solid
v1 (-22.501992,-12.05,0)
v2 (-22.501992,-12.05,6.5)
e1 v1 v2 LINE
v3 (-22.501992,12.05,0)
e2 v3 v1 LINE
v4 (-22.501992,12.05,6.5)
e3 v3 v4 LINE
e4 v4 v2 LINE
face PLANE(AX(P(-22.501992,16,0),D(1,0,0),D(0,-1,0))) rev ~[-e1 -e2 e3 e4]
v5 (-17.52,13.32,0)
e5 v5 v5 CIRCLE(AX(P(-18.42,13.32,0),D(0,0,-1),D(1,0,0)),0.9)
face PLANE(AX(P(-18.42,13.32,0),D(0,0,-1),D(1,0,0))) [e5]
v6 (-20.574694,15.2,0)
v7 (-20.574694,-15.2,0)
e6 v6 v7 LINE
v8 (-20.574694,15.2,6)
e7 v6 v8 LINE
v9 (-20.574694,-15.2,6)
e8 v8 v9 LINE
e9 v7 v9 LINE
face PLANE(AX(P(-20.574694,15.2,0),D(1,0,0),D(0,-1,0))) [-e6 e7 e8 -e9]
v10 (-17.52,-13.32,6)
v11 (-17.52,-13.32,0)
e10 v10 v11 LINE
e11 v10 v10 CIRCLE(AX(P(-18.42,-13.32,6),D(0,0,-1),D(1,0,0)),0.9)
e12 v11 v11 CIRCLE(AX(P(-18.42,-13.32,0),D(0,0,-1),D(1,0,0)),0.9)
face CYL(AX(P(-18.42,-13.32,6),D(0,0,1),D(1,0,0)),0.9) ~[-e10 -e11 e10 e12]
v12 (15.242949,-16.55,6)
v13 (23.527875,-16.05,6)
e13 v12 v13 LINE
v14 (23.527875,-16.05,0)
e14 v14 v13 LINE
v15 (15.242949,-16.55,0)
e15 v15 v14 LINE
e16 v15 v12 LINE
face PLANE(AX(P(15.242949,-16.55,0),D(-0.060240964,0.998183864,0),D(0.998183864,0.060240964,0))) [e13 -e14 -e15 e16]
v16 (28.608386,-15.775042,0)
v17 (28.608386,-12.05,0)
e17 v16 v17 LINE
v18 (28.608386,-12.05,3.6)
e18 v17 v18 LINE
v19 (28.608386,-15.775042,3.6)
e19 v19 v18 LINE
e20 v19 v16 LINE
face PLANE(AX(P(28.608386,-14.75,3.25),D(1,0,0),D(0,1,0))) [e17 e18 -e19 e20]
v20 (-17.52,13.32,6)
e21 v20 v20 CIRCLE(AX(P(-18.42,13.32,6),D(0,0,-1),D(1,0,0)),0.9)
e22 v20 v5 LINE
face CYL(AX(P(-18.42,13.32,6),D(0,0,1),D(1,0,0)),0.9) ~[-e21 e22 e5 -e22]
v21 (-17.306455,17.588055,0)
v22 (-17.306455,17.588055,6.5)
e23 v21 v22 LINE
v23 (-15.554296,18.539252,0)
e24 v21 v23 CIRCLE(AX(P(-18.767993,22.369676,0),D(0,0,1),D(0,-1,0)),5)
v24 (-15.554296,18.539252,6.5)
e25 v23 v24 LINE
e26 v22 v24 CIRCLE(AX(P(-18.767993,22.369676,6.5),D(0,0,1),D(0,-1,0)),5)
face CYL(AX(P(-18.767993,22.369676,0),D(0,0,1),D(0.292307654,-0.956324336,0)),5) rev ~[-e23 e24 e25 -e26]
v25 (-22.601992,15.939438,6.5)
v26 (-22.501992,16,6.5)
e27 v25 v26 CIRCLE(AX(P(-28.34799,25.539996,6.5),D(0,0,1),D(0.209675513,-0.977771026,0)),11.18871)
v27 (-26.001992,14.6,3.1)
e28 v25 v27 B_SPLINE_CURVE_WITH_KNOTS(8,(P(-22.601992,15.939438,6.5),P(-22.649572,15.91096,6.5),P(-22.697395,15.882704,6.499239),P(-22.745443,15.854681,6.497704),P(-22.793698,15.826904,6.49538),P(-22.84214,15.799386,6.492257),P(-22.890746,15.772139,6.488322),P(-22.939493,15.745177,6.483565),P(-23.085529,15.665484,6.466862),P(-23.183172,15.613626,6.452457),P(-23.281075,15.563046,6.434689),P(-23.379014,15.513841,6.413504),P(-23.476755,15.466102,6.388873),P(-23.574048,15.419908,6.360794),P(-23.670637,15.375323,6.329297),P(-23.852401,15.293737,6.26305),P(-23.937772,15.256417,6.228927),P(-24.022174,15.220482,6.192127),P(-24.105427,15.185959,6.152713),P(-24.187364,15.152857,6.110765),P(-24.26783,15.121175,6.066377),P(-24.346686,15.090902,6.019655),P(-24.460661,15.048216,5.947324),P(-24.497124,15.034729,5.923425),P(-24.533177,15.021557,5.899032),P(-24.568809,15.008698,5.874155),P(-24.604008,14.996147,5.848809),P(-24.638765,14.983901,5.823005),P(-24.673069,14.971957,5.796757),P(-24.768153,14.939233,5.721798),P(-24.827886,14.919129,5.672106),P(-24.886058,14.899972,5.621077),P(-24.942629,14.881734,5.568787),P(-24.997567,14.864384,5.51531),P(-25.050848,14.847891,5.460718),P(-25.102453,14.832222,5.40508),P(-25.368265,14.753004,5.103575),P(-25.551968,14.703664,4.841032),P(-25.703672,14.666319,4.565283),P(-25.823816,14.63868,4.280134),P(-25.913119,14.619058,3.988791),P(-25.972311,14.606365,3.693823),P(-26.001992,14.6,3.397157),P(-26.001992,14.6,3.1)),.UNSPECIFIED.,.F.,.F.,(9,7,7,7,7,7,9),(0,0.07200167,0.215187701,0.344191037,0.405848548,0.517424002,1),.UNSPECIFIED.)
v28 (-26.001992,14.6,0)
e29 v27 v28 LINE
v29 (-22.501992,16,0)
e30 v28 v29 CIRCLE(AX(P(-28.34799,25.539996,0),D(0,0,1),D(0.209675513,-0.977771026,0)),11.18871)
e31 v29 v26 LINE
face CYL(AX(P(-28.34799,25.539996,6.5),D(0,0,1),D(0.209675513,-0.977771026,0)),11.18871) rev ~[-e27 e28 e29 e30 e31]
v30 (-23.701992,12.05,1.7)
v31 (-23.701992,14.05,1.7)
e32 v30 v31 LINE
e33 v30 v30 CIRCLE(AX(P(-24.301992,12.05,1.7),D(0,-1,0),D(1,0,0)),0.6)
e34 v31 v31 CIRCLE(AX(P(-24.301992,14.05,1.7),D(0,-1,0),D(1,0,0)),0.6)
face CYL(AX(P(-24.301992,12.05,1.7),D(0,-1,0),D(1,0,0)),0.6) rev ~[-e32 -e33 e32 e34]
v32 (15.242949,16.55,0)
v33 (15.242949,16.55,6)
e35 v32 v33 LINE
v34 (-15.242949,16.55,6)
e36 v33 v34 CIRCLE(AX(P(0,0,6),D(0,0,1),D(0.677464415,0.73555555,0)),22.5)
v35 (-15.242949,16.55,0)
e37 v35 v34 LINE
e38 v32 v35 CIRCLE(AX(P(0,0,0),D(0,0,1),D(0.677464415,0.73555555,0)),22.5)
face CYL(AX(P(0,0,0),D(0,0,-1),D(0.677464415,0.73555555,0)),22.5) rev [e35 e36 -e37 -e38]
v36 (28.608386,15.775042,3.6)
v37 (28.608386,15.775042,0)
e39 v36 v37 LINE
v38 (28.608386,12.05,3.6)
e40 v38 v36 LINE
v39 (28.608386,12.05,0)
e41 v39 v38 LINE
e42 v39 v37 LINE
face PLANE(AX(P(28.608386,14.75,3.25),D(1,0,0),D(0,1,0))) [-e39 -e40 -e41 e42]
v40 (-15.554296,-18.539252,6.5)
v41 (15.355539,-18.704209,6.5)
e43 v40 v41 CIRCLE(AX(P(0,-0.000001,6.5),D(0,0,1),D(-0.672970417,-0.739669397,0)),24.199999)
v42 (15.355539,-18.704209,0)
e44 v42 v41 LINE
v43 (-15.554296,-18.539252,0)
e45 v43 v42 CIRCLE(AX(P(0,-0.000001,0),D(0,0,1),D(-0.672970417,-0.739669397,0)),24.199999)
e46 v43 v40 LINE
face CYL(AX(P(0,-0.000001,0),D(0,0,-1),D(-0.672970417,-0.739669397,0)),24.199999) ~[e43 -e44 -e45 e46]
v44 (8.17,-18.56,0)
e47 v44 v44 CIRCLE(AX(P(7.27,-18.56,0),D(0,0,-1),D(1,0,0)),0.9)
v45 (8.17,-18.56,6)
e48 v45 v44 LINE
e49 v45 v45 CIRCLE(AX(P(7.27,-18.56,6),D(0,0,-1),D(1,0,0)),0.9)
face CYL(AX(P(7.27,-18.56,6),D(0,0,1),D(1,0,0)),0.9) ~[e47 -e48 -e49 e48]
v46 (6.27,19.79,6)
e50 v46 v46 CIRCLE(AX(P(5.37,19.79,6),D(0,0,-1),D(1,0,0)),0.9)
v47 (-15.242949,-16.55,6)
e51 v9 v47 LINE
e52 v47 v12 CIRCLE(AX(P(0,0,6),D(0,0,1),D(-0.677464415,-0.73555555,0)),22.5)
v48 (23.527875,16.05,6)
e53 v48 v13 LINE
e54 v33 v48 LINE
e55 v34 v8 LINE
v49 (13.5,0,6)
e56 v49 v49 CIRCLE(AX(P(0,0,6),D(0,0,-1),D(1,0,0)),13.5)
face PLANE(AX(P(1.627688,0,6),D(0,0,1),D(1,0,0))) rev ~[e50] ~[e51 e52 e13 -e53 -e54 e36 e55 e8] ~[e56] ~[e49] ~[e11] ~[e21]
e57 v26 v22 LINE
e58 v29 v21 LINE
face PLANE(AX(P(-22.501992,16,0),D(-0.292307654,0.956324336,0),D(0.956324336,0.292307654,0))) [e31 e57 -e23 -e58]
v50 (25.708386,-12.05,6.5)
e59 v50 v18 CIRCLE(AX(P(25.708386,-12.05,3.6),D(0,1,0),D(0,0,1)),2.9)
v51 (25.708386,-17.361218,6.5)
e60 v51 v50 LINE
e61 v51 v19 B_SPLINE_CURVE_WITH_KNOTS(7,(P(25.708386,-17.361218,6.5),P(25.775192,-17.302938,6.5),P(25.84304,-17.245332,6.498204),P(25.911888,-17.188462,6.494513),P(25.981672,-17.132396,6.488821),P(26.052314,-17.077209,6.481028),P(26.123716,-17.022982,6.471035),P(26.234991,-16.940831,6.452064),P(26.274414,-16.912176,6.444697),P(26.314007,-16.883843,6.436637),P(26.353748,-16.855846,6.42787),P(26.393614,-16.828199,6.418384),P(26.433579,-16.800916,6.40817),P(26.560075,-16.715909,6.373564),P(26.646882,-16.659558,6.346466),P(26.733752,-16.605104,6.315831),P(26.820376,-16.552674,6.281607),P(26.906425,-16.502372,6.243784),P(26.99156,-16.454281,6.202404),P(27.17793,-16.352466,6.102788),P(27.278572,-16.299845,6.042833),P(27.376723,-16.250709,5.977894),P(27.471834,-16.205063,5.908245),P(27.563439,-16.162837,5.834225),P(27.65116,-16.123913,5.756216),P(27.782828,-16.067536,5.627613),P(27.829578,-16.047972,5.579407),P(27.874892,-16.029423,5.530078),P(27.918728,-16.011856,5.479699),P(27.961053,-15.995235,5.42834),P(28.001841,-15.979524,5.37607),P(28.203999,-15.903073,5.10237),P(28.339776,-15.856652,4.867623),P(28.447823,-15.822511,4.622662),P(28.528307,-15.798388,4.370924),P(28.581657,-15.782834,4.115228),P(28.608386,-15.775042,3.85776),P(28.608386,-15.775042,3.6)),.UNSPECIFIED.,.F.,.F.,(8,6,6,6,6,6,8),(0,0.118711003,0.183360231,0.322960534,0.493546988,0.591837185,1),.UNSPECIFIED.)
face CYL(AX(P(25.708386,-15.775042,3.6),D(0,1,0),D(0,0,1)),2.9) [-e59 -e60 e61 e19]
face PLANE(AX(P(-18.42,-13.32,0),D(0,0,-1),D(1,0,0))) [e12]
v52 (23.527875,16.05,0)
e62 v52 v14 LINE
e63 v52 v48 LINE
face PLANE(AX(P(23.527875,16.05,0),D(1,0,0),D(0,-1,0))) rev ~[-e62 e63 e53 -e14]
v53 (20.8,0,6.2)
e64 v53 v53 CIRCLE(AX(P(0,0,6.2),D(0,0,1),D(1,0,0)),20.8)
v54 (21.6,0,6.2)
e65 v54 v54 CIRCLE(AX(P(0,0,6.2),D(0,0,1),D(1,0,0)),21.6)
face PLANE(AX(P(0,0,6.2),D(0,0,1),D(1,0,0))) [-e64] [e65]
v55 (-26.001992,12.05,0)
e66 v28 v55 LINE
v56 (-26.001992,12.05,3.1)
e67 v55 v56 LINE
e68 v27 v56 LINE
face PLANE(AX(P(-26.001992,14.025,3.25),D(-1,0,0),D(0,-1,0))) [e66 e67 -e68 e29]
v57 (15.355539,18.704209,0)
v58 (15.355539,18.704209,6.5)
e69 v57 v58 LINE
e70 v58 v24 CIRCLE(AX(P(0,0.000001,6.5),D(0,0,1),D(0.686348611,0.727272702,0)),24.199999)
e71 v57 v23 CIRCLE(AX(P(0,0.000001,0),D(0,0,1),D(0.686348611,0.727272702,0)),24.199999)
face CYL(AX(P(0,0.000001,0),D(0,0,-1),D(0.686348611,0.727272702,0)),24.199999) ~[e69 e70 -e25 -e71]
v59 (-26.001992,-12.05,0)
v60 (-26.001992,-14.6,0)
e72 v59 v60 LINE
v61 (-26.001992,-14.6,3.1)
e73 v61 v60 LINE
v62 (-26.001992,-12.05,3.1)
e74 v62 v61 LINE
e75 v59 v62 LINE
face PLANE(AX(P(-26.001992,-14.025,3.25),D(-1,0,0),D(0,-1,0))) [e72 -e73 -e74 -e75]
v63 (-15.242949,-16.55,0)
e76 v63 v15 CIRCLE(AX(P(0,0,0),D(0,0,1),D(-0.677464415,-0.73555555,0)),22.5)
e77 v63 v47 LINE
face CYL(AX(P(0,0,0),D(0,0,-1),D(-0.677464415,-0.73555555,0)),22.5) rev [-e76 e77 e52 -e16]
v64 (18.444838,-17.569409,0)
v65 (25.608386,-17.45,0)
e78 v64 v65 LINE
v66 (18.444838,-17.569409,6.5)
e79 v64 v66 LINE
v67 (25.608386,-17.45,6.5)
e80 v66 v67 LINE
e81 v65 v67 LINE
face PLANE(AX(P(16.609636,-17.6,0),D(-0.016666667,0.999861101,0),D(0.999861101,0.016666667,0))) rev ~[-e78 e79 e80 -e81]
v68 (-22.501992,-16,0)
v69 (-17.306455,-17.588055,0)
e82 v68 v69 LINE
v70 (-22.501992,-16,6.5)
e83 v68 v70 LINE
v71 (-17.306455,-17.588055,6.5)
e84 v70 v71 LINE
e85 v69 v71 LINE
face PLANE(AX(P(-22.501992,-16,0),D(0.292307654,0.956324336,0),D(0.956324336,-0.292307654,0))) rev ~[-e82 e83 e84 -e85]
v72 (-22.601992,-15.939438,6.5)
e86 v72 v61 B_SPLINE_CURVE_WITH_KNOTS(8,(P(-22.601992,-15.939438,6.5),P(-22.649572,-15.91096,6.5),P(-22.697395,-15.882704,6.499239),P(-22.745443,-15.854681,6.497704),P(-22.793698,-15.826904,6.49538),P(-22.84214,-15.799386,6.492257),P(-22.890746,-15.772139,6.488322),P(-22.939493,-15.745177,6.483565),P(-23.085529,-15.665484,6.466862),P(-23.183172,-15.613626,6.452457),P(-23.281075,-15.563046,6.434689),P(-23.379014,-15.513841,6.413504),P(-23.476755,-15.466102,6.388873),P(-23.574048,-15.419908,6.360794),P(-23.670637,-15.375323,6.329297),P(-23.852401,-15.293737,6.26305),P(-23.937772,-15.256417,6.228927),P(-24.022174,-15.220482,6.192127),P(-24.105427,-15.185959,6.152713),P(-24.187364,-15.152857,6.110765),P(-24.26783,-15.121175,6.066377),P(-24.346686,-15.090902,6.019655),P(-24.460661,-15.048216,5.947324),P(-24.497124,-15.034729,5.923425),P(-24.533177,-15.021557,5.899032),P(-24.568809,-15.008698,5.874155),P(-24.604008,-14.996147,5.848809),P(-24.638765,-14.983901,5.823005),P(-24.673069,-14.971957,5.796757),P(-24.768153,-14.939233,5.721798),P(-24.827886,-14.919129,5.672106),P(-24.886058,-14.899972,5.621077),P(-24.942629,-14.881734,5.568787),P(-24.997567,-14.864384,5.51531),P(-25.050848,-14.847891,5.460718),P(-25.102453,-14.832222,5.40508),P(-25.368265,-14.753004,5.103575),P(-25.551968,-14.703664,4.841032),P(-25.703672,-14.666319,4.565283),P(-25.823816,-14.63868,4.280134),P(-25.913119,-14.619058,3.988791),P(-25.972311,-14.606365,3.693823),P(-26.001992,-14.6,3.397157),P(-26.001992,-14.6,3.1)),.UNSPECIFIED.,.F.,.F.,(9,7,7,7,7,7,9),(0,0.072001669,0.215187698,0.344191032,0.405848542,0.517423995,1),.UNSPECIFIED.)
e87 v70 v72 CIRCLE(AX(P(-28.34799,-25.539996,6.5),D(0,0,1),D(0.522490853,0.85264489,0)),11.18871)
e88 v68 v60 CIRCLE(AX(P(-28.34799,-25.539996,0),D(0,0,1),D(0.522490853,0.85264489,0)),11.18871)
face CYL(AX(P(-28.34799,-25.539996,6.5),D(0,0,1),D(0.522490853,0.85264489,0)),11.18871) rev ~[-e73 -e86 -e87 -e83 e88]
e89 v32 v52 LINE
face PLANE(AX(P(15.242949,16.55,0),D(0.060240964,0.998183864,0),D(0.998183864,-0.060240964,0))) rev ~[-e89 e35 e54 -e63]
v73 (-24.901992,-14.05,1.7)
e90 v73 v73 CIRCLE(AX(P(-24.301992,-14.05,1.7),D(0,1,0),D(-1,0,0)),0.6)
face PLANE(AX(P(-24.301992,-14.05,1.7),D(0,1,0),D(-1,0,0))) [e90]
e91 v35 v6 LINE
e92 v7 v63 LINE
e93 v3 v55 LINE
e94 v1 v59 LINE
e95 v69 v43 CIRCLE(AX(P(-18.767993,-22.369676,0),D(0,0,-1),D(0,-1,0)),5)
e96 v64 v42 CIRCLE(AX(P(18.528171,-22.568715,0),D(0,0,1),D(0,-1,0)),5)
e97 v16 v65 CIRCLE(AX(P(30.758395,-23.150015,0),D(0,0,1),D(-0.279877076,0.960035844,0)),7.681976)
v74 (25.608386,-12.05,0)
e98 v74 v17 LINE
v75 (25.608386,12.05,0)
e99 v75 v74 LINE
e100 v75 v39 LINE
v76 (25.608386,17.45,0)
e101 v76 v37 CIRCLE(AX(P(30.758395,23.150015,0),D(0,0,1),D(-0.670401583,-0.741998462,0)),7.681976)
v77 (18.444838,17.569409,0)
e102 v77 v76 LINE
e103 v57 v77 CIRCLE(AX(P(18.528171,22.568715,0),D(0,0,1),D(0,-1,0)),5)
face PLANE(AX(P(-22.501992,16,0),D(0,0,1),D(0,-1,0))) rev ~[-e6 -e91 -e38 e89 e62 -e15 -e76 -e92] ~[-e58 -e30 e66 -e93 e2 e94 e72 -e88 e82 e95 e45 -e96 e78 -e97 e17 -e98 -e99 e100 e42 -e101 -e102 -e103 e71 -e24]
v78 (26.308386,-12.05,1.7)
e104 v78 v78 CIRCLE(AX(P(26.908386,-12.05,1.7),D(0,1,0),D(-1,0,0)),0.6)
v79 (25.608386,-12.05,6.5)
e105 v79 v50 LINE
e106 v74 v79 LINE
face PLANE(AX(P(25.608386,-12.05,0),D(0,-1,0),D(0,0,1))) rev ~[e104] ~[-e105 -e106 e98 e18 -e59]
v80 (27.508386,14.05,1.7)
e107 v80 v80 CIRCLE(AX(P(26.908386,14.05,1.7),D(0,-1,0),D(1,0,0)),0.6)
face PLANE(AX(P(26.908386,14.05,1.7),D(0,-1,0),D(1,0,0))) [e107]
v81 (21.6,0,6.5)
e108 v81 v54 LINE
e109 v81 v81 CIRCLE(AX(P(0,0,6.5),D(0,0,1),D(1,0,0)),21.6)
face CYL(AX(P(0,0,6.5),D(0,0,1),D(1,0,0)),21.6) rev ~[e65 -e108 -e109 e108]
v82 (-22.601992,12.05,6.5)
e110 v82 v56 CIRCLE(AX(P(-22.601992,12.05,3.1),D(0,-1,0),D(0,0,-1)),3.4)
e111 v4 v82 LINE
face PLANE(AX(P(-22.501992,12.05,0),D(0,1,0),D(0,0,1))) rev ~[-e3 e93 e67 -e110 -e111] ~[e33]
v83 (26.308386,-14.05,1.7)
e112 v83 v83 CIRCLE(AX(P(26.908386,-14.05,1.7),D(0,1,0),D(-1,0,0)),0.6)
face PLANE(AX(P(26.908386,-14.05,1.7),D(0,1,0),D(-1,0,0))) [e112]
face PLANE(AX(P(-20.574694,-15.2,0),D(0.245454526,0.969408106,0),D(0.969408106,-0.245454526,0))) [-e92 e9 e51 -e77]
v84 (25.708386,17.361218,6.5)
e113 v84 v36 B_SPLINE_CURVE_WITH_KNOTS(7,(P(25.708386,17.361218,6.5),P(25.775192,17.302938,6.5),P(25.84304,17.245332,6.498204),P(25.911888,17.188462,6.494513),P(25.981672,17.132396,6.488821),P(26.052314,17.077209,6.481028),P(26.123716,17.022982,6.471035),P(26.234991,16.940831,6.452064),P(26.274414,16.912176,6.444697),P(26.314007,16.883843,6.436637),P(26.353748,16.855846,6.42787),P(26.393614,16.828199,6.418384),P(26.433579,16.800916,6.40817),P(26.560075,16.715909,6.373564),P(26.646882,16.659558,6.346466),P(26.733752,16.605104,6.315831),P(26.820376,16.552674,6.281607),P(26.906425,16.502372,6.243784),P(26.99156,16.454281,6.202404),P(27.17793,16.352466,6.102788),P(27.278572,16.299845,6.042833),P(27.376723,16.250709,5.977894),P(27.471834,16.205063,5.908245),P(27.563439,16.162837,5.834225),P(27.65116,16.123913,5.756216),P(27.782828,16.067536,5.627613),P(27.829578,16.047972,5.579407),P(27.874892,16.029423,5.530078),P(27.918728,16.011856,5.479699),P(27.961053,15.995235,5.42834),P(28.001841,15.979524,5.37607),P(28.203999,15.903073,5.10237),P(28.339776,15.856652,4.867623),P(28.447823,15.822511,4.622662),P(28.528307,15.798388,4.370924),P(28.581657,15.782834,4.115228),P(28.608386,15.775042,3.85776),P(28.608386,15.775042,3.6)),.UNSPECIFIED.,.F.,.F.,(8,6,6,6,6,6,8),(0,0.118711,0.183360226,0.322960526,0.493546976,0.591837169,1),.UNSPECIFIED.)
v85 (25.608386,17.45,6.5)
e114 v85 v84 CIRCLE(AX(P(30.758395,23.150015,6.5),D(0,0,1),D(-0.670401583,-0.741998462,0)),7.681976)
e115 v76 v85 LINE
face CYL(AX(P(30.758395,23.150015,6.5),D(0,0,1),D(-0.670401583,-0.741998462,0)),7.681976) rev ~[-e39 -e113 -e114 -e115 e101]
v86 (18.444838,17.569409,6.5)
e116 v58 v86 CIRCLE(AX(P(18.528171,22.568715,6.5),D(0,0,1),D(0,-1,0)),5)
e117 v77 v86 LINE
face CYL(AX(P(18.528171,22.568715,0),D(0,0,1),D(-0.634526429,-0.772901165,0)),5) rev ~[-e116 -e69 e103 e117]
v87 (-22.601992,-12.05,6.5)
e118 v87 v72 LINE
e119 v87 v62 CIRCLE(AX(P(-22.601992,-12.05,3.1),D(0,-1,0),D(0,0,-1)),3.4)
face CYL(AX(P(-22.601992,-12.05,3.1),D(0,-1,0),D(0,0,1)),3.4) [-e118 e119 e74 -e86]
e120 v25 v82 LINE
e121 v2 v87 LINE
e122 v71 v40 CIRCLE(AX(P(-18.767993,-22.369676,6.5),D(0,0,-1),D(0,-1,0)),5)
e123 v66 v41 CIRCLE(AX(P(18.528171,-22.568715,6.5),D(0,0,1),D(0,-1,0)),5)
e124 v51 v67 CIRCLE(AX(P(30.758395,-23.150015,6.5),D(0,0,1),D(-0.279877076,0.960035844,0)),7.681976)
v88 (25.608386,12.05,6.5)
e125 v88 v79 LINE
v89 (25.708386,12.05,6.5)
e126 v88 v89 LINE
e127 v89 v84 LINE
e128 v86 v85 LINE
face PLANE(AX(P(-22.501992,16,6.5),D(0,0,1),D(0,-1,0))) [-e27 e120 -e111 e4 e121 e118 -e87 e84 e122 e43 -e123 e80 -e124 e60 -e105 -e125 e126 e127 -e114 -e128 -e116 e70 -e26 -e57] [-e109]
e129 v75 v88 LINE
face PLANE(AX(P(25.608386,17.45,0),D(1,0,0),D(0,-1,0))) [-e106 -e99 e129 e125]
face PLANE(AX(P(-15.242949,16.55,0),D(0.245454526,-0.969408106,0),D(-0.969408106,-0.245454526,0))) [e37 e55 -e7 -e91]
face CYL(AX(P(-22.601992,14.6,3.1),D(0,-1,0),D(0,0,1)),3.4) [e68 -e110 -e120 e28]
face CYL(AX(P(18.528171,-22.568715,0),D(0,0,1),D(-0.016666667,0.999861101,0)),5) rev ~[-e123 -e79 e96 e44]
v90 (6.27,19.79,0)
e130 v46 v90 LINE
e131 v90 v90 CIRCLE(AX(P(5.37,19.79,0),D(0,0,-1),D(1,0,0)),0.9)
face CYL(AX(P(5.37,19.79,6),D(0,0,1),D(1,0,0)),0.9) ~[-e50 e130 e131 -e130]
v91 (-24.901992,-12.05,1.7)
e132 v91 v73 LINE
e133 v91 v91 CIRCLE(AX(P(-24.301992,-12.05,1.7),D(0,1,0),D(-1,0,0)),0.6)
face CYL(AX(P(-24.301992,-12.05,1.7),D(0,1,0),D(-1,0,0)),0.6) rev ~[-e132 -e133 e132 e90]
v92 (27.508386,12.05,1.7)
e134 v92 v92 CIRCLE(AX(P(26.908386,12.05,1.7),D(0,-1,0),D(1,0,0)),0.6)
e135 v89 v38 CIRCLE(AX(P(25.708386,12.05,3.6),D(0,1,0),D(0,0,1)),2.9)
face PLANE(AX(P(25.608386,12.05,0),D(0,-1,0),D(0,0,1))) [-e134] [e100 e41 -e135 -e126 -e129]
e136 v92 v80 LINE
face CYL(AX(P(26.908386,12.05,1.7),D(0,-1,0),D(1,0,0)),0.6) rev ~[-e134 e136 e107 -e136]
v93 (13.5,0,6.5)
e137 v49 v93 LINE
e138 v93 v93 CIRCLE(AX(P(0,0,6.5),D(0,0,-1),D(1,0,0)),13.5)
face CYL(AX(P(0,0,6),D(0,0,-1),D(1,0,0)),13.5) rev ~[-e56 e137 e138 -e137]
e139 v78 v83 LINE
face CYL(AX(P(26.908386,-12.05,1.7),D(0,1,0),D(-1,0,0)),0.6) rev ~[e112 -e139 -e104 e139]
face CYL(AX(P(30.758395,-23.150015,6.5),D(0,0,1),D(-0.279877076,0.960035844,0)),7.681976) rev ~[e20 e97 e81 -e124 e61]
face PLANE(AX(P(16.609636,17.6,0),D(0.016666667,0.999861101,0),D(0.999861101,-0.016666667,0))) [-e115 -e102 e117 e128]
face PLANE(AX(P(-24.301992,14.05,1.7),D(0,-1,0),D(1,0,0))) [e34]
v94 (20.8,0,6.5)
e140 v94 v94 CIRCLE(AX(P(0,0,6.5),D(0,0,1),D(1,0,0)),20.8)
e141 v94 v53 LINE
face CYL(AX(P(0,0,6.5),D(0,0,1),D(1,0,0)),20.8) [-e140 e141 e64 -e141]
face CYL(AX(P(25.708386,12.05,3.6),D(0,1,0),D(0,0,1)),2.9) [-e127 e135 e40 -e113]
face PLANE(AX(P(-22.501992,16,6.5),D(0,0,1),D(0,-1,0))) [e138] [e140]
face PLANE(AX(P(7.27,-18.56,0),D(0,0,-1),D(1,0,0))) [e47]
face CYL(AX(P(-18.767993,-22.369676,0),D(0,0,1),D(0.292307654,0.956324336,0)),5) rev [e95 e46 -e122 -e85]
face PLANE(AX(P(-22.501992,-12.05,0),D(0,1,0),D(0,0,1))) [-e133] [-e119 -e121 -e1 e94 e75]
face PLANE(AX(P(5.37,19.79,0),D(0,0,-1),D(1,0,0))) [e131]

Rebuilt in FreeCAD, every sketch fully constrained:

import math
import FreeCAD as App
import Part
import Sketcher
from FreeCAD import Vector
Q = App.Units.Quantity


def edges_at(feature, points):
    """Names of the edges that pass closest to the given points."""
    edges = feature.Shape.Edges
    near = lambda p: min(range(len(edges)), key=lambda i: edges[i].distToShape(Part.Vertex(*p))[0])
    return sorted({f"Edge{near(p) + 1}" for p in points})

doc = App.newDocument("Part")
body = doc.addObject("PartDesign::Body", "Body")

# Sketch on XY plane
sketch1 = body.newObject("Sketcher::SketchObject", "Sketch")
sketch1.AttachmentSupport = (doc.getObject("XY_Plane"), [""])
sketch1.MapMode = "FlatFace"
sketch1.addGeometry([
    Part.LineSegment(Vector(-22.501992, 16, 0), Vector(-22.501992, -16, 0)),  # 0
    Part.LineSegment(Vector(-22.501992, -16, 0), Vector(-16.285883, -17.9, 0)),  # 1
    Part.ArcOfCircle(Part.Circle(Vector(0, -0.000001, 0), Vector(0, 0, 1), 24.199999), math.radians(-132.296739), math.radians(-46.65824)),  # 2
    Part.LineSegment(Vector(16.609636, -17.6, 0), Vector(25.608386, -17.45, 0)),  # 3
    Part.LineSegment(Vector(25.608386, -17.45, 0), Vector(25.608386, 17.45, 0)),  # 4
    Part.LineSegment(Vector(25.608386, 17.45, 0), Vector(16.609636, 17.6, 0)),  # 5
    Part.ArcOfCircle(Part.Circle(Vector(0, 0.000001, 0), Vector(0, 0, 1), 24.199999), math.radians(46.65824), math.radians(132.296739)),  # 6
    Part.LineSegment(Vector(-16.285883, 17.9, 0), Vector(-22.501992, 16, 0)),  # 7
], False)
sketch1.addConstraint([
    Sketcher.Constraint("Coincident", 0, 2, 1, 1),
    Sketcher.Constraint("Coincident", 1, 2, 2, 1),
    Sketcher.Constraint("Coincident", 2, 2, 3, 1),
    Sketcher.Constraint("Coincident", 3, 2, 4, 1),
    Sketcher.Constraint("Coincident", 4, 2, 5, 1),
    Sketcher.Constraint("Coincident", 5, 2, 6, 1),
    Sketcher.Constraint("Coincident", 6, 2, 7, 1),
    Sketcher.Constraint("Coincident", 7, 2, 0, 1),
    Sketcher.Constraint("Vertical", 0),
    Sketcher.Constraint("Vertical", 4),
    Sketcher.Constraint("Coincident", 2, 3, -1, 1),
    Sketcher.Constraint("Coincident", 6, 3, -1, 1),
    Sketcher.Constraint("Equal", 2, 6),
    Sketcher.Constraint("Vertical", 2, 2, 5, 2),
    Sketcher.Constraint("Vertical", 1, 2, 6, 2),
    Sketcher.Constraint("Equal", 3, 5),
    Sketcher.Constraint("Equal", 1, 7),
    Sketcher.Constraint("Radius", 2, Q("24.199999 mm")),
    Sketcher.Constraint("DistanceY", 0, 2, 0, 1, Q("32 mm")),
    Sketcher.Constraint("Distance", 3, Q("9 mm")),
    Sketcher.Constraint("DistanceY", 4, 1, 4, 2, Q("34.9 mm")),
    Sketcher.Constraint("Distance", 1, Q("6.500001 mm")),
    Sketcher.Constraint("DistanceY", 1, 2, -1, 1, Q("17.9 mm")),
    Sketcher.Constraint("DistanceY", 2, 2, -1, 1, Q("17.6 mm")),
])
pad1 = body.newObject("PartDesign::Pad", "Pad")
pad1.Profile = sketch1
pad1.Length = 6.5

# Sketch on XY plane
sketch2 = body.newObject("Sketcher::SketchObject", "Sketch001")
sketch2.AttachmentSupport = (doc.getObject("XY_Plane"), [""])
sketch2.MapMode = "FlatFace"
sketch2.addGeometry([
    Part.LineSegment(Vector(-15.242949, 16.55, 0), Vector(-20.574694, 15.2, 0)),  # 0
    Part.LineSegment(Vector(-20.574694, 15.2, 0), Vector(-20.574694, -15.2, 0)),  # 1
    Part.LineSegment(Vector(-20.574694, -15.2, 0), Vector(-15.242949, -16.55, 0)),  # 2
    Part.ArcOfCircle(Part.Circle(Vector(0, 0, 0), Vector(0, 0, 1), 22.5), math.radians(-132.64582), math.radians(-47.35418)),  # 3
    Part.LineSegment(Vector(15.242949, -16.55, 0), Vector(23.527875, -16.05, 0)),  # 4
    Part.LineSegment(Vector(23.527875, -16.05, 0), Vector(23.527875, 16.05, 0)),  # 5
    Part.LineSegment(Vector(23.527875, 16.05, 0), Vector(15.242949, 16.55, 0)),  # 6
    Part.ArcOfCircle(Part.Circle(Vector(0, 0, 0), Vector(0, 0, 1), 22.5), math.radians(47.35418), math.radians(132.64582)),  # 7
], False)
sketch2.addConstraint([
    Sketcher.Constraint("Coincident", 0, 2, 1, 1),
    Sketcher.Constraint("Coincident", 1, 2, 2, 1),
    Sketcher.Constraint("Coincident", 2, 2, 3, 1),
    Sketcher.Constraint("Coincident", 3, 2, 4, 1),
    Sketcher.Constraint("Coincident", 4, 2, 5, 1),
    Sketcher.Constraint("Coincident", 5, 2, 6, 1),
    Sketcher.Constraint("Coincident", 6, 2, 7, 1),
    Sketcher.Constraint("Coincident", 7, 2, 0, 1),
    Sketcher.Constraint("Vertical", 1),
    Sketcher.Constraint("Vertical", 5),
    Sketcher.Constraint("Coincident", 3, 3, -1, 1),
    Sketcher.Constraint("Coincident", 7, 3, -1, 1),
    Sketcher.Constraint("Equal", 3, 7),
    Sketcher.Constraint("Horizontal", 2, 2, 3, 2),
    Sketcher.Constraint("Horizontal", 6, 2, 7, 2),
    Sketcher.Constraint("Vertical", 3, 2, 6, 2),
    Sketcher.Constraint("Equal", 0, 2),
    Sketcher.Constraint("Equal", 4, 6),
    Sketcher.Constraint("Radius", 3, Q("22.5 mm")),
    Sketcher.Constraint("DistanceY", 1, 2, 1, 1, Q("30.4 mm")),
    Sketcher.Constraint("DistanceY", 5, 1, 5, 2, Q("32.1 mm")),
    Sketcher.Constraint("Distance", 0, Q("5.5 mm")),
    Sketcher.Constraint("Distance", 4, Q("8.3 mm")),
    Sketcher.Constraint("DistanceY", 3, 2, 4, 2, Q("0.5 mm")),
])
pocket1 = body.newObject("PartDesign::Pocket", "Pocket")
pocket1.Profile = sketch2
pocket1.Length = 6
pocket1.Reversed = True

# Sketch on XY plane
sketch3 = body.newObject("Sketcher::SketchObject", "Sketch002")
sketch3.AttachmentSupport = (doc.getObject("XY_Plane"), [""])
sketch3.MapMode = "FlatFace"
sketch3.AttachmentOffset = App.Placement(Vector(0, 0, 6), App.Rotation())
sketch3.addGeometry(Part.Circle(Vector(0, 0, 0), Vector(0, 0, 1), 13.5), False)
sketch3.addConstraint([
    Sketcher.Constraint("Coincident", 0, 3, -1, 1),
    Sketcher.Constraint("Diameter", 0, Q("27 mm")),
])
pocket2 = body.newObject("PartDesign::Pocket", "Pocket001")
pocket2.Profile = sketch3
pocket2.Length = 1
pocket2.Reversed = True

# Sketch on YZ plane
sketch4 = body.newObject("Sketcher::SketchObject", "Sketch003")
sketch4.AttachmentSupport = (doc.getObject("YZ_Plane"), [""])
sketch4.MapMode = "FlatFace"
sketch4.AttachmentOffset = App.Placement(Vector(0, 0, 25.608386), App.Rotation())
sketch4.addGeometry([
    Part.LineSegment(Vector(-17.45, 6.5, 0), Vector(-17.45, 0, 0)),  # 0
    Part.LineSegment(Vector(-17.45, 0, 0), Vector(-12.05, 0, 0)),  # 1
    Part.LineSegment(Vector(-12.05, 0, 0), Vector(-12.05, 6.5, 0)),  # 2
    Part.LineSegment(Vector(-12.05, 6.5, 0), Vector(-17.45, 6.5, 0)),  # 3
    Part.LineSegment(Vector(12.05, 6.5, 0), Vector(12.05, 0, 0)),  # 4
    Part.LineSegment(Vector(12.05, 0, 0), Vector(17.45, 0, 0)),  # 5
    Part.LineSegment(Vector(17.45, 0, 0), Vector(17.45, 6.5, 0)),  # 6
    Part.LineSegment(Vector(17.45, 6.5, 0), Vector(12.05, 6.5, 0)),  # 7
], False)
sketch4.addConstraint([
    Sketcher.Constraint("Coincident", 0, 2, 1, 1),
    Sketcher.Constraint("Coincident", 1, 2, 2, 1),
    Sketcher.Constraint("Coincident", 2, 2, 3, 1),
    Sketcher.Constraint("Coincident", 3, 2, 0, 1),
    Sketcher.Constraint("Coincident", 4, 2, 5, 1),
    Sketcher.Constraint("Coincident", 5, 2, 6, 1),
    Sketcher.Constraint("Coincident", 6, 2, 7, 1),
    Sketcher.Constraint("Coincident", 7, 2, 4, 1),
    Sketcher.Constraint("Vertical", 0),
    Sketcher.Constraint("Horizontal", 1),
    Sketcher.Constraint("Vertical", 2),
    Sketcher.Constraint("Horizontal", 3),
    Sketcher.Constraint("Vertical", 4),
    Sketcher.Constraint("Horizontal", 5),
    Sketcher.Constraint("Vertical", 6),
    Sketcher.Constraint("Horizontal", 7),
    Sketcher.Constraint("Symmetric", 1, 2, 4, 2, -1, 1),
    Sketcher.Constraint("Symmetric", 0, 2, 5, 2, -2),
    Sketcher.Constraint("Horizontal", 3, 2, 6, 2),
    Sketcher.Constraint("DistanceX", 1, 1, 1, 2, Q("5.4 mm")),
    Sketcher.Constraint("DistanceY", 0, 2, 0, 1, Q("6.5 mm")),
    Sketcher.Constraint("DistanceX", 1, 2, 4, 2, Q("24.1 mm")),
])
pad2 = body.newObject("PartDesign::Pad", "Pad001")
pad2.Profile = sketch4
pad2.Length = 3

# Sketch on XY plane
sketch5 = body.newObject("Sketcher::SketchObject", "Sketch004")
sketch5.AttachmentSupport = (doc.getObject("XY_Plane"), [""])
sketch5.MapMode = "FlatFace"
sketch5.AttachmentOffset = App.Placement(Vector(0, 0, 6.5), App.Rotation())
sketch5.addGeometry([
    Part.ArcOfCircle(Part.Circle(Vector(30.758395, 23.150015, 0), Vector(0, 0, 1), 7.681976), math.radians(-132.098067), math.radians(-106.252868)),  # 0
    Part.LineSegment(Vector(28.608386, 15.775042, 0), Vector(28.608386, 17.45, 0)),  # 1
    Part.LineSegment(Vector(28.608386, 17.45, 0), Vector(25.608386, 17.45, 0)),  # 2
    Part.ArcOfCircle(Part.Circle(Vector(30.758395, -23.150015, 0), Vector(0, 0, 1), 7.681976), math.radians(106.252868), math.radians(132.098067)),  # 3
    Part.LineSegment(Vector(25.608386, -17.45, 0), Vector(28.608386, -17.45, 0)),  # 4
    Part.LineSegment(Vector(28.608386, -17.45, 0), Vector(28.608386, -15.775042, 0)),  # 5
], False)
sketch5.addConstraint([
    Sketcher.Constraint("Coincident", 0, 2, 1, 1),
    Sketcher.Constraint("Coincident", 1, 2, 2, 1),
    Sketcher.Constraint("Coincident", 2, 2, 0, 1),
    Sketcher.Constraint("Coincident", 3, 2, 4, 1),
    Sketcher.Constraint("Coincident", 4, 2, 5, 1),
    Sketcher.Constraint("Coincident", 5, 2, 3, 1),
    Sketcher.Constraint("Vertical", 1),
    Sketcher.Constraint("Horizontal", 2),
    Sketcher.Constraint("Horizontal", 4),
    Sketcher.Constraint("Vertical", 5),
    Sketcher.Constraint("Equal", 0, 3),
    Sketcher.Constraint("Symmetric", 0, 3, 3, 3, -1),
    Sketcher.Constraint("Symmetric", 1, 2, 4, 2, -1),
    Sketcher.Constraint("DistanceX", 2, 2, 2, 1, Q("3 mm")),
    Sketcher.Constraint("DistanceY", 3, 2, 2, 2, Q("34.9 mm")),
    Sketcher.Constraint("Radius", 0, Q("7.681976 mm")),
    Sketcher.Constraint("DistanceY", 1, 1, 1, 2, Q("1.674958 mm")),
    Sketcher.Constraint("DistanceX", -1, 1, 0, 3, Q("30.758395 mm")),
])
pocket3 = body.newObject("PartDesign::Pocket", "Pocket002")
pocket3.Profile = sketch5
pocket3.Length = 10

# Sketch on XZ plane
sketch6 = body.newObject("Sketcher::SketchObject", "Sketch005")
sketch6.AttachmentSupport = (doc.getObject("XZ_Plane"), [""])
sketch6.MapMode = "FlatFace"
sketch6.AttachmentOffset = App.Placement(Vector(0, 0, 12.05), App.Rotation())
sketch6.addGeometry(Part.Circle(Vector(26.908386, 1.7, 0), Vector(0, 0, 1), 0.6), False)
sketch6.addConstraint([
    Sketcher.Constraint("Diameter", 0, Q("1.2 mm")),
    Sketcher.Constraint("DistanceY", -1, 1, 0, 3, Q("1.7 mm")),
    Sketcher.Constraint("DistanceX", -1, 1, 0, 3, Q("26.908386 mm")),
])
pocket4 = body.newObject("PartDesign::Pocket", "Pocket003")
pocket4.Profile = sketch6
pocket4.Length = 2
pocket4.Reversed = True

# Sketch on XZ plane
sketch7 = body.newObject("Sketcher::SketchObject", "Sketch006")
sketch7.AttachmentSupport = (doc.getObject("XZ_Plane"), [""])
sketch7.MapMode = "FlatFace"
sketch7.AttachmentOffset = App.Placement(Vector(0, 0, -12.05), App.Rotation())
sketch7.addGeometry(Part.Circle(Vector(26.908386, 1.7, 0), Vector(0, 0, 1), 0.6), False)
sketch7.addConstraint([
    Sketcher.Constraint("Diameter", 0, Q("1.2 mm")),
    Sketcher.Constraint("DistanceY", -1, 1, 0, 3, Q("1.7 mm")),
    Sketcher.Constraint("DistanceX", -1, 1, 0, 3, Q("26.908386 mm")),
])
pocket5 = body.newObject("PartDesign::Pocket", "Pocket004")
pocket5.Profile = sketch7
pocket5.Length = 2
doc.recompute()

fillet = body.newObject("PartDesign::Fillet", "Fillet")
fillet.Base = (pocket5, edges_at(pocket5, [(28.608, -13.913, 6.5)]))
fillet.Radius = 2.9
doc.recompute()

fillet2 = body.newObject("PartDesign::Fillet", "Fillet001")
fillet2.Base = (fillet, edges_at(fillet, [(28.608, 13.913, 6.5)]))
fillet2.Radius = 2.9
doc.recompute()

fillet3 = body.newObject("PartDesign::Fillet", "Fillet002")
fillet3.Base = (fillet2, edges_at(fillet2, [(16.61, -17.6, 3.25)]))
fillet3.Radius = 5
doc.recompute()

fillet4 = body.newObject("PartDesign::Fillet", "Fillet003")
fillet4.Base = (fillet3, edges_at(fillet3, [(16.61, 17.6, 3.25)]))
fillet4.Radius = 5
doc.recompute()

fillet5 = body.newObject("PartDesign::Fillet", "Fillet004")
fillet5.Base = (fillet4, edges_at(fillet4, [(-16.286, -17.9, 3.25)]))
fillet5.Radius = 5
doc.recompute()

fillet6 = body.newObject("PartDesign::Fillet", "Fillet005")
fillet6.Base = (fillet5, edges_at(fillet5, [(-16.286, 17.9, 3.25)]))
fillet6.Radius = 5

# Sketch on YZ plane
sketch8 = body.newObject("Sketcher::SketchObject", "Sketch007")
sketch8.AttachmentSupport = (doc.getObject("YZ_Plane"), [""])
sketch8.MapMode = "FlatFace"
sketch8.AttachmentOffset = App.Placement(Vector(0, 0, -22.501992), App.Rotation())
sketch8.addGeometry([
    Part.LineSegment(Vector(16, 6.5, 0), Vector(16, 0, 0)),  # 0
    Part.LineSegment(Vector(16, 0, 0), Vector(12.05, 0, 0)),  # 1
    Part.LineSegment(Vector(12.05, 0, 0), Vector(12.05, 6.5, 0)),  # 2
    Part.LineSegment(Vector(12.05, 6.5, 0), Vector(16, 6.5, 0)),  # 3
    Part.LineSegment(Vector(-12.05, 6.5, 0), Vector(-12.05, 0, 0)),  # 4
    Part.LineSegment(Vector(-12.05, 0, 0), Vector(-16, 0, 0)),  # 5
    Part.LineSegment(Vector(-16, 0, 0), Vector(-16, 6.5, 0)),  # 6
    Part.LineSegment(Vector(-16, 6.5, 0), Vector(-12.05, 6.5, 0)),  # 7
], False)
sketch8.addConstraint([
    Sketcher.Constraint("Coincident", 0, 2, 1, 1),
    Sketcher.Constraint("Coincident", 1, 2, 2, 1),
    Sketcher.Constraint("Coincident", 2, 2, 3, 1),
    Sketcher.Constraint("Coincident", 3, 2, 0, 1),
    Sketcher.Constraint("Coincident", 4, 2, 5, 1),
    Sketcher.Constraint("Coincident", 5, 2, 6, 1),
    Sketcher.Constraint("Coincident", 6, 2, 7, 1),
    Sketcher.Constraint("Coincident", 7, 2, 4, 1),
    Sketcher.Constraint("Vertical", 0),
    Sketcher.Constraint("Horizontal", 1),
    Sketcher.Constraint("Vertical", 2),
    Sketcher.Constraint("Horizontal", 3),
    Sketcher.Constraint("Vertical", 4),
    Sketcher.Constraint("Horizontal", 5),
    Sketcher.Constraint("Vertical", 6),
    Sketcher.Constraint("Horizontal", 7),
    Sketcher.Constraint("Symmetric", 1, 2, 4, 2, -1, 1),
    Sketcher.Constraint("Symmetric", 0, 2, 5, 2, -2),
    Sketcher.Constraint("Horizontal", 3, 2, 6, 2),
    Sketcher.Constraint("DistanceY", 0, 2, 0, 1, Q("6.5 mm")),
    Sketcher.Constraint("DistanceX", -1, 1, 0, 2, Q("16 mm")),
    Sketcher.Constraint("DistanceX", 1, 2, 1, 1, Q("3.95 mm")),
])
pad3 = body.newObject("PartDesign::Pad", "Pad002")
pad3.Profile = sketch8
pad3.Length = 3.5
pad3.Reversed = True

# Sketch on XY plane
sketch9 = body.newObject("Sketcher::SketchObject", "Sketch008")
sketch9.AttachmentSupport = (doc.getObject("XY_Plane"), [""])
sketch9.MapMode = "FlatFace"
sketch9.AttachmentOffset = App.Placement(Vector(0, 0, 6.5), App.Rotation())
sketch9.addGeometry([
    Part.ArcOfCircle(Part.Circle(Vector(-28.34799, 25.539996, 0), Vector(0, 0, 1), 11.18871), math.radians(-77.896663), math.radians(-58.500518)),  # 0
    Part.LineSegment(Vector(-22.501992, 16, 0), Vector(-26.001992, 16, 0)),  # 1
    Part.LineSegment(Vector(-26.001992, 16, 0), Vector(-26.001992, 14.6, 0)),  # 2
    Part.ArcOfCircle(Part.Circle(Vector(-28.34799, -25.539996, 0), Vector(0, 0, 1), 11.18871), math.radians(58.500518), math.radians(77.896663)),  # 3
    Part.LineSegment(Vector(-26.001992, -14.6, 0), Vector(-26.001992, -16, 0)),  # 4
    Part.LineSegment(Vector(-26.001992, -16, 0), Vector(-22.501992, -16, 0)),  # 5
], False)
sketch9.addConstraint([
    Sketcher.Constraint("Coincident", 0, 2, 1, 1),
    Sketcher.Constraint("Coincident", 1, 2, 2, 1),
    Sketcher.Constraint("Coincident", 2, 2, 0, 1),
    Sketcher.Constraint("Coincident", 3, 2, 4, 1),
    Sketcher.Constraint("Coincident", 4, 2, 5, 1),
    Sketcher.Constraint("Coincident", 5, 2, 3, 1),
    Sketcher.Constraint("Horizontal", 1),
    Sketcher.Constraint("Vertical", 2),
    Sketcher.Constraint("Vertical", 4),
    Sketcher.Constraint("Horizontal", 5),
    Sketcher.Constraint("Equal", 0, 3),
    Sketcher.Constraint("Symmetric", 0, 3, 3, 3, -1),
    Sketcher.Constraint("Symmetric", 1, 2, 4, 2, -1),
    Sketcher.Constraint("DistanceX", 1, 2, 1, 1, Q("3.5 mm")),
    Sketcher.Constraint("DistanceY", 2, 2, 2, 1, Q("1.4 mm")),
    Sketcher.Constraint("DistanceY", -1, 1, 0, 2, Q("16 mm")),
    Sketcher.Constraint("Radius", 0, Q("11.18871 mm")),
    Sketcher.Constraint("DistanceX", 0, 3, -1, 1, Q("28.34799 mm")),
])
pocket6 = body.newObject("PartDesign::Pocket", "Pocket005")
pocket6.Profile = sketch9
pocket6.Length = 10

# Sketch on XZ plane
sketch10 = body.newObject("Sketcher::SketchObject", "Sketch009")
sketch10.AttachmentSupport = (doc.getObject("XZ_Plane"), [""])
sketch10.MapMode = "FlatFace"
sketch10.AttachmentOffset = App.Placement(Vector(0, 0, 12.05), App.Rotation())
sketch10.addGeometry(Part.Circle(Vector(-24.301992, 1.7, 0), Vector(0, 0, 1), 0.6), False)
sketch10.addConstraint([
    Sketcher.Constraint("Diameter", 0, Q("1.2 mm")),
    Sketcher.Constraint("DistanceY", -1, 1, 0, 3, Q("1.7 mm")),
    Sketcher.Constraint("DistanceX", 0, 3, -1, 1, Q("24.301992 mm")),
])
pocket7 = body.newObject("PartDesign::Pocket", "Pocket006")
pocket7.Profile = sketch10
pocket7.Length = 2
pocket7.Reversed = True

# Sketch on XZ plane
sketch11 = body.newObject("Sketcher::SketchObject", "Sketch010")
sketch11.AttachmentSupport = (doc.getObject("XZ_Plane"), [""])
sketch11.MapMode = "FlatFace"
sketch11.AttachmentOffset = App.Placement(Vector(0, 0, -12.05), App.Rotation())
sketch11.addGeometry(Part.Circle(Vector(-24.301992, 1.7, 0), Vector(0, 0, 1), 0.6), False)
sketch11.addConstraint([
    Sketcher.Constraint("Diameter", 0, Q("1.2 mm")),
    Sketcher.Constraint("DistanceY", -1, 1, 0, 3, Q("1.7 mm")),
    Sketcher.Constraint("DistanceX", 0, 3, -1, 1, Q("24.301992 mm")),
])
pocket8 = body.newObject("PartDesign::Pocket", "Pocket007")
pocket8.Profile = sketch11
pocket8.Length = 2
doc.recompute()

fillet7 = body.newObject("PartDesign::Fillet", "Fillet006")
fillet7.Base = (pocket8, edges_at(pocket8, [(-26.002, 13.325, 6.5)]))
fillet7.Radius = 3.4
doc.recompute()

fillet8 = body.newObject("PartDesign::Fillet", "Fillet007")
fillet8.Base = (fillet7, edges_at(fillet7, [(-26.002, -13.325, 6.5)]))
fillet8.Radius = 3.4

# Sketch on XY plane
sketch12 = body.newObject("Sketcher::SketchObject", "Sketch011")
sketch12.AttachmentSupport = (doc.getObject("XY_Plane"), [""])
sketch12.MapMode = "FlatFace"
sketch12.AttachmentOffset = App.Placement(Vector(0, 0, 6.5), App.Rotation())
sketch12.addGeometry([
    Part.Circle(Vector(0, 0, 0), Vector(0, 0, 1), 21.6),
    Part.Circle(Vector(0, 0, 0), Vector(0, 0, 1), 20.8),
], False)
sketch12.addConstraint([
    Sketcher.Constraint("Coincident", 0, 3, -1, 1),
    Sketcher.Constraint("Coincident", 1, 3, -1, 1),
    Sketcher.Constraint("Diameter", 0, Q("43.2 mm")),
    Sketcher.Constraint("Diameter", 1, Q("41.6 mm")),
])
pocket9 = body.newObject("PartDesign::Pocket", "Pocket008")
pocket9.Profile = sketch12
pocket9.Length = 0.3

# Sketch on XY plane
sketch13 = body.newObject("Sketcher::SketchObject", "Sketch012")
sketch13.AttachmentSupport = (doc.getObject("XY_Plane"), [""])
sketch13.MapMode = "FlatFace"
sketch13.AttachmentOffset = App.Placement(Vector(0, 0, 6), App.Rotation())
sketch13.addGeometry([
    Part.Circle(Vector(-18.42, -13.32, 0), Vector(0, 0, 1), 0.9),
    Part.Circle(Vector(-18.42, 13.32, 0), Vector(0, 0, 1), 0.9),
    Part.Circle(Vector(7.27, -18.56, 0), Vector(0, 0, 1), 0.9),
    Part.Circle(Vector(5.37, 19.79, 0), Vector(0, 0, 1), 0.9),
], False)
sketch13.addConstraint([
    Sketcher.Constraint("Equal", 0, 1),
    Sketcher.Constraint("Equal", 1, 2),
    Sketcher.Constraint("Equal", 2, 3),
    Sketcher.Constraint("Symmetric", 0, 3, 1, 3, -1),
    Sketcher.Constraint("Diameter", 0, Q("1.8 mm")),
    Sketcher.Constraint("DistanceX", 3, 3, 2, 3, Q("1.9 mm")),
    Sketcher.Constraint("DistanceX", 0, 3, -1, 1, Q("18.42 mm")),
    Sketcher.Constraint("DistanceY", 0, 3, -1, 1, Q("13.32 mm")),
    Sketcher.Constraint("DistanceX", -1, 1, 2, 3, Q("7.27 mm")),
    Sketcher.Constraint("DistanceY", 2, 3, -1, 1, Q("18.56 mm")),
    Sketcher.Constraint("DistanceY", -1, 1, 3, 3, Q("19.79 mm")),
])
pad4 = body.newObject("PartDesign::Pad", "Pad003")
pad4.Profile = sketch13
pad4.Length = 6
pad4.Reversed = True

doc.recompute()
